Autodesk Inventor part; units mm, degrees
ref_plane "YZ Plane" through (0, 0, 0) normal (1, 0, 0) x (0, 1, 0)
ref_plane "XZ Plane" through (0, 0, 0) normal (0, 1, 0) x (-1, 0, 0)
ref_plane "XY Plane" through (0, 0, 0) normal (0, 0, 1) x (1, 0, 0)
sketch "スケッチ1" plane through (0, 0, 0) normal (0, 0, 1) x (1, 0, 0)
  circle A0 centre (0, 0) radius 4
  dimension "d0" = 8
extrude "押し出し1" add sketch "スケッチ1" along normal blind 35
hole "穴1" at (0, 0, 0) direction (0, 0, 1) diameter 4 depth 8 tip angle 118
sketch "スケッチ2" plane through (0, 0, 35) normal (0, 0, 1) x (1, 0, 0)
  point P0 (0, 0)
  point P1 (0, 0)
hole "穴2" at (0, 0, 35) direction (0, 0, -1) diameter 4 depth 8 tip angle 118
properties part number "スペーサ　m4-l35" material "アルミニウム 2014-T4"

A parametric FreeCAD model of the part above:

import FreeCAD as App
import Part
import Sketcher

V = App.Vector
Q = App.Units.Quantity

doc = App.newDocument("Part")
body = doc.addObject("PartDesign::Body", "Body")

sketch1 = body.newObject("Sketcher::SketchObject", "Sketch")
sketch1.AttachmentSupport = (doc.getObject("XY_Plane"), [""])
sketch1.MapMode = "FlatFace"
sketch1.addGeometry(Part.Circle(V(0, 0, 0), V(0, 0, 1), 4), False)
sketch1.addConstraint([
    Sketcher.Constraint("Coincident", 0, 3, -1, 1),
    Sketcher.Constraint("Diameter", 0, Q("8 mm")),
])
pad1 = body.newObject("PartDesign::Pad", "Pad")
pad1.Profile = sketch1
pad1.Length = 35

sketch2 = body.newObject("Sketcher::SketchObject", "Sketch001")
sketch2.AttachmentSupport = (doc.getObject("XY_Plane"), [""])
sketch2.MapMode = "FlatFace"
sketch2.addGeometry(Part.Circle(V(0, 0, 0), V(0, 0, 1), 2), False)
sketch2.addConstraint([
    Sketcher.Constraint("Coincident", 0, 3, -1, 1),
    Sketcher.Constraint("Diameter", 0, Q("4 mm")),
])
doc.recompute()
hole = body.newObject("PartDesign::Hole", "Hole")
hole.Profile = sketch2
hole.ThreadType = "None"
hole.Diameter = 4
hole.DepthType = "Dimension"
hole.Depth = 8
hole.DrillPoint = "Angled"
hole.DrillPointAngle = 118
hole.Reversed = True

sketch3 = body.newObject("Sketcher::SketchObject", "Sketch002")
sketch3.AttachmentSupport = (doc.getObject("XY_Plane"), [""])
sketch3.MapMode = "FlatFace"
sketch3.AttachmentOffset = App.Placement(V(0, 0, 35), App.Rotation())
sketch3.addGeometry(Part.Circle(V(0, 0, 0), V(0, 0, 1), 2), False)
sketch3.addConstraint([
    Sketcher.Constraint("Coincident", 0, 3, -1, 1),
    Sketcher.Constraint("Diameter", 0, Q("4 mm")),
])
doc.recompute()
hole2 = body.newObject("PartDesign::Hole", "Hole001")
hole2.Profile = sketch3
hole2.ThreadType = "None"
hole2.Diameter = 4
hole2.DepthType = "Dimension"
hole2.Depth = 8
hole2.DrillPoint = "Angled"
hole2.DrillPointAngle = 118

doc.recompute()
